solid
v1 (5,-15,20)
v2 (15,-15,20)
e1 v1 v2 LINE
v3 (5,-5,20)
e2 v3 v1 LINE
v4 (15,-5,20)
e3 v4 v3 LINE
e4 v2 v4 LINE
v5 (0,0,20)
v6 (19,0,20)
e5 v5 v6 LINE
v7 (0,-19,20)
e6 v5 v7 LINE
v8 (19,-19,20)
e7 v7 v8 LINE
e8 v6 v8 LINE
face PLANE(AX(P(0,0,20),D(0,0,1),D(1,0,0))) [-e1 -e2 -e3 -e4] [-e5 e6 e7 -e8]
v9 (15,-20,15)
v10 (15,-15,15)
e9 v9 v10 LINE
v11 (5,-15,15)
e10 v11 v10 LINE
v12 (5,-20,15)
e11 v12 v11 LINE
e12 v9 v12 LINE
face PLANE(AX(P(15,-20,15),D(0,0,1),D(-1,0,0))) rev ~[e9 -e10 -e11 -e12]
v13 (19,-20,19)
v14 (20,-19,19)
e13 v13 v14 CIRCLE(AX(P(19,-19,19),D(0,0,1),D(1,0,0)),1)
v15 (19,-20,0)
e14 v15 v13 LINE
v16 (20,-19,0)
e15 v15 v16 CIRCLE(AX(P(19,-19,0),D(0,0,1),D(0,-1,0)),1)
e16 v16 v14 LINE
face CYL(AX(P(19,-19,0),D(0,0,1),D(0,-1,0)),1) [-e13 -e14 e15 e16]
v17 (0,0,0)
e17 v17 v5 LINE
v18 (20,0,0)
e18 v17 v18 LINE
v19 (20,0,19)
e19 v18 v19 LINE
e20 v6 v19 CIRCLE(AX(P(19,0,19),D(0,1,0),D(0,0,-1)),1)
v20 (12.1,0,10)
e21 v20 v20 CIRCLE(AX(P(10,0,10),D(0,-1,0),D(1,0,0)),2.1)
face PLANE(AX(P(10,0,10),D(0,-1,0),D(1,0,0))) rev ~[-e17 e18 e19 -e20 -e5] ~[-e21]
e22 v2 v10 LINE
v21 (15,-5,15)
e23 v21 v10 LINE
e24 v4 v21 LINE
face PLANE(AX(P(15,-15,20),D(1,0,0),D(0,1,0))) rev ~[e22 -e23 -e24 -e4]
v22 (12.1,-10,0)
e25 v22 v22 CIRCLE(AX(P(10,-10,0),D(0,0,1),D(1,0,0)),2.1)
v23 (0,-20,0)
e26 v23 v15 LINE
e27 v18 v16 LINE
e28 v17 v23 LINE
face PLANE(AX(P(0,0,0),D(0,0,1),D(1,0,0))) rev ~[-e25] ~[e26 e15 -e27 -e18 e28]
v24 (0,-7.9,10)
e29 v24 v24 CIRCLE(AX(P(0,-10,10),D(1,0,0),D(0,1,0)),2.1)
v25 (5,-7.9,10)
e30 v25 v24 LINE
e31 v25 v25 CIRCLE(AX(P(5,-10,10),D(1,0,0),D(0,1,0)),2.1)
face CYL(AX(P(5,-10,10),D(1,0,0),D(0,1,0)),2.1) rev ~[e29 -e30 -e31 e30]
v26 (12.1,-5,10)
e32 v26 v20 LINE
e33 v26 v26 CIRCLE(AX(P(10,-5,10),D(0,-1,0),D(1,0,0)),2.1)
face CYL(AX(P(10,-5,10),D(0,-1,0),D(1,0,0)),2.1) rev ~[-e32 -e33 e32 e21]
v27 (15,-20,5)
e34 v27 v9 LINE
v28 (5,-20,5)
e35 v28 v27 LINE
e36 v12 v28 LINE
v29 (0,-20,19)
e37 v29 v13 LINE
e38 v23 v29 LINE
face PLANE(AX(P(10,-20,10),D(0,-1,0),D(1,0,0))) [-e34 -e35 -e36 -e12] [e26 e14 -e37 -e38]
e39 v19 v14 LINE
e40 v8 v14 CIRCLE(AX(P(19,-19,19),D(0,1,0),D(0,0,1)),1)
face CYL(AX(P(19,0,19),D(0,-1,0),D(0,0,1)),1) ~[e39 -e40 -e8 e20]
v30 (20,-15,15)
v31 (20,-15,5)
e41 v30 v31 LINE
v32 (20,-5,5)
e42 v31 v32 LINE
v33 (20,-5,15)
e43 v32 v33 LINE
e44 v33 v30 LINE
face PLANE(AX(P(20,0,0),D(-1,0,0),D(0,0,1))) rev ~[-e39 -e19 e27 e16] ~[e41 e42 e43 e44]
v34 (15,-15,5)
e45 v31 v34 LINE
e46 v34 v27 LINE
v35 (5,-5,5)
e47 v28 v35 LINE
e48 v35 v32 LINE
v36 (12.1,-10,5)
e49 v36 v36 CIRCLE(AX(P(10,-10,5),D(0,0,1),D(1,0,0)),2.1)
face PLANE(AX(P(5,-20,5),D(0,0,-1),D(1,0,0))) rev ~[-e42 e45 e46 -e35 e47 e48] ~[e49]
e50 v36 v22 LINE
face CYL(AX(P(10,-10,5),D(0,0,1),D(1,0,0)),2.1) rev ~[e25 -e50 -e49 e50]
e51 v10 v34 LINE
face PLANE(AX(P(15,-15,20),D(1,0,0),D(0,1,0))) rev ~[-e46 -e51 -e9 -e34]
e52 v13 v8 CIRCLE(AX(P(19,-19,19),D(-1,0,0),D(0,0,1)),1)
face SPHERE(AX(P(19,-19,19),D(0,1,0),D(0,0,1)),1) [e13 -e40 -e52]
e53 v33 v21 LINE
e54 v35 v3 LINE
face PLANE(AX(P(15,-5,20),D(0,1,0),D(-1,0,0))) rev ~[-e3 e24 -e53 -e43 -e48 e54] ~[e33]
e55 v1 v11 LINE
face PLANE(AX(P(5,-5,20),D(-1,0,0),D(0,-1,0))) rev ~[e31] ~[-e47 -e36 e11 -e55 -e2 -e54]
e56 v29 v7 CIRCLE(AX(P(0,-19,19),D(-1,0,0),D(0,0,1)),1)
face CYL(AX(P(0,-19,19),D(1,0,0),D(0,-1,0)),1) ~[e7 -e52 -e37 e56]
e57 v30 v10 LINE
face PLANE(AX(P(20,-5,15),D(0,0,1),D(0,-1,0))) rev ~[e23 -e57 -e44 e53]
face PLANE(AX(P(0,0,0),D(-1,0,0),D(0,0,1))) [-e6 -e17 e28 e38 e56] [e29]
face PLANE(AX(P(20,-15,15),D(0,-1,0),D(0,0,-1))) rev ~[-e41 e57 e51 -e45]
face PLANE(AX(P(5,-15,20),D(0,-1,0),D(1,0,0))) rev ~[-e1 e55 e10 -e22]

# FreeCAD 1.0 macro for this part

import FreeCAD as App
import Part
import Sketcher
Q = App.Units.Quantity


def edges_at(feature, points):
    """Names of the edges that pass closest to the given points."""
    edges = feature.Shape.Edges
    near = lambda p: min(range(len(edges)), key=lambda i: edges[i].distToShape(Part.Vertex(*p))[0])
    return sorted({f"Edge{near(p) + 1}" for p in points})


def add_polygon(sketch, points):
    """Adds a closed chain of lines whose ends are joined by coincident constraints."""
    first, n = sketch.GeometryCount, len(points)
    for a, b in zip(points, points[1:] + points[:1]):
        sketch.addGeometry(Part.LineSegment(App.Vector(*a, 0), App.Vector(*b, 0)), False)
    for i in range(n):
        sketch.addConstraint(Sketcher.Constraint("Coincident", first + i, 2, first + (i + 1) % n, 1))

doc = App.newDocument("Part")
body = doc.addObject("PartDesign::Body", "Body")

# Sketch on XZ plane
sketch1 = body.newObject("Sketcher::SketchObject", "Sketch")
sketch1.AttachmentSupport = (doc.getObject("XZ_Plane"), [""])
sketch1.MapMode = "FlatFace"
add_polygon(sketch1, [(0, 20), (0, 0), (20, 0), (20, 20)])  # lines 0-3
sketch1.addConstraint([
    Sketcher.Constraint("Vertical", 0),
    Sketcher.Constraint("Horizontal", 1),
    Sketcher.Constraint("Vertical", 2),
    Sketcher.Constraint("Horizontal", 3),
    Sketcher.Constraint("Coincident", 0, 2, -1, 1),
    Sketcher.Constraint("Equal", 3, 0),
    Sketcher.Constraint("DistanceX", 1, 1, 1, 2, Q("20 mm")),
])
pad1 = body.newObject("PartDesign::Pad", "Pad")
pad1.Profile = sketch1
pad1.Length = 20

# Sketch on XZ plane
sketch2 = body.newObject("Sketcher::SketchObject", "Sketch001")
sketch2.AttachmentSupport = (doc.getObject("XZ_Plane"), [""])
sketch2.MapMode = "FlatFace"
sketch2.AttachmentOffset = App.Placement(App.Vector(0, 0, 20), App.Rotation())
add_polygon(sketch2, [(5, 15), (5, 5), (15, 5), (15, 15)])  # lines 0-3
sketch2.addConstraint([
    Sketcher.Constraint("Vertical", 0),
    Sketcher.Constraint("Horizontal", 1),
    Sketcher.Constraint("Vertical", 2),
    Sketcher.Constraint("Horizontal", 3),
    Sketcher.Constraint("Equal", 3, 0),
    Sketcher.Constraint("DistanceX", 1, 1, 1, 2, Q("10 mm")),
    Sketcher.Constraint("DistanceX", -1, 1, 0, 2, Q("5 mm")),
    Sketcher.Constraint("DistanceY", -1, 1, 0, 2, Q("5 mm")),
])
pocket1 = body.newObject("PartDesign::Pocket", "Pocket")
pocket1.Profile = sketch2
pocket1.Length = 15

# Sketch on XZ plane
sketch3 = body.newObject("Sketcher::SketchObject", "Sketch002")
sketch3.AttachmentSupport = (doc.getObject("XZ_Plane"), [""])
sketch3.MapMode = "FlatFace"
sketch3.AttachmentOffset = App.Placement(App.Vector(0, 0, 5), App.Rotation())
sketch3.addGeometry(Part.Circle(App.Vector(10, 10, 0), App.Vector(0, 0, 1), 2.1), False)
sketch3.addConstraint([
    Sketcher.Constraint("Diameter", 0, Q("4.2 mm")),
    Sketcher.Constraint("DistanceX", -1, 1, 0, 3, Q("10 mm")),
    Sketcher.Constraint("DistanceY", -1, 1, 0, 3, Q("10 mm")),
])
pocket2 = body.newObject("PartDesign::Pocket", "Pocket001")
pocket2.Profile = sketch3
pocket2.Length = 25

# Sketch on XY plane
sketch4 = body.newObject("Sketcher::SketchObject", "Sketch003")
sketch4.AttachmentSupport = (doc.getObject("XY_Plane"), [""])
sketch4.MapMode = "FlatFace"
sketch4.AttachmentOffset = App.Placement(App.Vector(0, 0, 20), App.Rotation())
add_polygon(sketch4, [(5, -5), (5, -15), (15, -15), (15, -5)])  # lines 0-3
sketch4.addConstraint([
    Sketcher.Constraint("Vertical", 0),
    Sketcher.Constraint("Horizontal", 1),
    Sketcher.Constraint("Vertical", 2),
    Sketcher.Constraint("Horizontal", 3),
    Sketcher.Constraint("Equal", 3, 0),
    Sketcher.Constraint("DistanceX", 1, 1, 1, 2, Q("10 mm")),
    Sketcher.Constraint("DistanceX", -1, 1, 0, 2, Q("5 mm")),
    Sketcher.Constraint("DistanceY", 0, 2, -1, 1, Q("15 mm")),
])
pocket3 = body.newObject("PartDesign::Pocket", "Pocket002")
pocket3.Profile = sketch4
pocket3.Length = 15

# Sketch on XY plane
sketch5 = body.newObject("Sketcher::SketchObject", "Sketch004")
sketch5.AttachmentSupport = (doc.getObject("XY_Plane"), [""])
sketch5.MapMode = "FlatFace"
sketch5.AttachmentOffset = App.Placement(App.Vector(0, 0, 5), App.Rotation())
sketch5.addGeometry(Part.Circle(App.Vector(10, -10, 0), App.Vector(0, 0, 1), 2.1), False)
sketch5.addConstraint([
    Sketcher.Constraint("Diameter", 0, Q("4.2 mm")),
    Sketcher.Constraint("DistanceX", -1, 1, 0, 3, Q("10 mm")),
    Sketcher.Constraint("DistanceY", 0, 3, -1, 1, Q("10 mm")),
])
pocket4 = body.newObject("PartDesign::Pocket", "Pocket003")
pocket4.Profile = sketch5
pocket4.Length = 25

# Sketch on YZ plane
sketch6 = body.newObject("Sketcher::SketchObject", "Sketch005")
sketch6.AttachmentSupport = (doc.getObject("YZ_Plane"), [""])
sketch6.MapMode = "FlatFace"
sketch6.AttachmentOffset = App.Placement(App.Vector(0, 0, 20), App.Rotation())
add_polygon(sketch6, [(-15, 15), (-15, 5), (-5, 5), (-5, 15)])  # lines 0-3
sketch6.addConstraint([
    Sketcher.Constraint("Vertical", 0),
    Sketcher.Constraint("Horizontal", 1),
    Sketcher.Constraint("Vertical", 2),
    Sketcher.Constraint("Horizontal", 3),
    Sketcher.Constraint("Equal", 3, 0),
    Sketcher.Constraint("DistanceX", 1, 1, 1, 2, Q("10 mm")),
    Sketcher.Constraint("DistanceX", 0, 2, -1, 1, Q("15 mm")),
    Sketcher.Constraint("DistanceY", -1, 1, 0, 2, Q("5 mm")),
])
pocket5 = body.newObject("PartDesign::Pocket", "Pocket004")
pocket5.Profile = sketch6
pocket5.Length = 15

# Sketch on YZ plane
sketch7 = body.newObject("Sketcher::SketchObject", "Sketch006")
sketch7.AttachmentSupport = (doc.getObject("YZ_Plane"), [""])
sketch7.MapMode = "FlatFace"
sketch7.AttachmentOffset = App.Placement(App.Vector(0, 0, 5), App.Rotation())
sketch7.addGeometry(Part.Circle(App.Vector(-10, 10, 0), App.Vector(0, 0, 1), 2.1), False)
sketch7.addConstraint([
    Sketcher.Constraint("Diameter", 0, Q("4.2 mm")),
    Sketcher.Constraint("DistanceX", 0, 3, -1, 1, Q("10 mm")),
    Sketcher.Constraint("DistanceY", -1, 1, 0, 3, Q("10 mm")),
])
pocket6 = body.newObject("PartDesign::Pocket", "Pocket005")
pocket6.Profile = sketch7
pocket6.Length = 25
doc.recompute()

fillet = body.newObject("PartDesign::Fillet", "Fillet")
fillet.Base = (pocket6, edges_at(pocket6, [(20, -10, 20), (10, -20, 20), (20, -20, 10)]))
fillet.Radius = 1

doc.recompute()
